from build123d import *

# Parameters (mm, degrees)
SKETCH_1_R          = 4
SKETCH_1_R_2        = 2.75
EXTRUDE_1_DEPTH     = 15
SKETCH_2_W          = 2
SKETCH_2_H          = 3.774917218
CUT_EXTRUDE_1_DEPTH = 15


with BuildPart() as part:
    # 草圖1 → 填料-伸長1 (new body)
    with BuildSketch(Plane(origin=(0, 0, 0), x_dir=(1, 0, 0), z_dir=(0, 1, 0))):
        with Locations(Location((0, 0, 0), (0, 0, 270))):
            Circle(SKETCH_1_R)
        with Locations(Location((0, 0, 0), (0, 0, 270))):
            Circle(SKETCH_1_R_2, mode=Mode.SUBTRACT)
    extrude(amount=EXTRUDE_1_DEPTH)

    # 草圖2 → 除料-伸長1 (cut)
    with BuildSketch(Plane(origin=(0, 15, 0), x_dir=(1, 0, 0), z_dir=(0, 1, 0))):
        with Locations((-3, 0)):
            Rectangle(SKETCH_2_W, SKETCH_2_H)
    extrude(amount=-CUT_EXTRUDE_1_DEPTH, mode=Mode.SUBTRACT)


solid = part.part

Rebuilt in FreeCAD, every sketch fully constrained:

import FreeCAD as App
import Part
import Sketcher

V = App.Vector

doc = App.newDocument("Part")
body = doc.addObject("PartDesign::Body", "Body")

# Sketch on XZ plane
sketch1 = body.newObject("Sketcher::SketchObject", "Sketch")
sketch1.AttachmentSupport = (doc.getObject("XZ_Plane"), [""])
sketch1.MapMode = "FlatFace"
sketch1.addGeometry([
    Part.Circle(V(0, 0, 0), V(0, 0, 1), 4),
    Part.Circle(V(0, 0, 0), V(0, 0, 1), 2.8),
], False)
sketch1.addConstraint([
    Sketcher.Constraint("Coincident", 0, 3, -1, 1),
    Sketcher.Constraint("Coincident", 1, 3, -1, 1),
    Sketcher.Constraint("Diameter", 0, 8.0),
    Sketcher.Constraint("Diameter", 1, 5.5),
])
pad1 = body.newObject("PartDesign::Pad", "Pad")
pad1.Profile = sketch1
pad1.Length = 15
pad1.Reversed = True

# Sketch on XZ plane
sketch2 = body.newObject("Sketcher::SketchObject", "Sketch001")
sketch2.AttachmentSupport = (doc.getObject("XZ_Plane"), [""])
sketch2.MapMode = "FlatFace"
sketch2.AttachmentOffset = App.Placement(V(0, 0, -15), App.Rotation())
sketch2.addGeometry([
    Part.LineSegment(V(-4, -1.9, 0), V(-4, 1.9, 0)),
    Part.LineSegment(V(-4, 1.9, 0), V(-2, 1.9, 0)),
    Part.LineSegment(V(-2, 1.9, 0), V(-2, -1.9, 0)),
    Part.LineSegment(V(-2, -1.9, 0), V(-4, -1.9, 0)),
], False)
sketch2.addConstraint([
    Sketcher.Constraint("Coincident", 0, 2, 1, 1),
    Sketcher.Constraint("Coincident", 1, 2, 2, 1),
    Sketcher.Constraint("Coincident", 2, 2, 3, 1),
    Sketcher.Constraint("Coincident", 3, 2, 0, 1),
    Sketcher.Constraint("Vertical", 0),
    Sketcher.Constraint("Horizontal", 1),
    Sketcher.Constraint("Vertical", 2),
    Sketcher.Constraint("Horizontal", 3),
    Sketcher.Constraint("DistanceX", 1, 1, 1, 2, 2.0),
    Sketcher.Constraint("DistanceX", 0, 2, -1, 1, 4.0),
    Sketcher.Constraint("DistanceY", 0, 1, 0, 2, 3.774917),
    Sketcher.Constraint("DistanceY", -1, 1, 0, 2, 1.887459),
])
pocket1 = body.newObject("PartDesign::Pocket", "Pocket")
pocket1.Profile = sketch2
pocket1.Length = 15
pocket1.Reversed = True

doc.recompute()
